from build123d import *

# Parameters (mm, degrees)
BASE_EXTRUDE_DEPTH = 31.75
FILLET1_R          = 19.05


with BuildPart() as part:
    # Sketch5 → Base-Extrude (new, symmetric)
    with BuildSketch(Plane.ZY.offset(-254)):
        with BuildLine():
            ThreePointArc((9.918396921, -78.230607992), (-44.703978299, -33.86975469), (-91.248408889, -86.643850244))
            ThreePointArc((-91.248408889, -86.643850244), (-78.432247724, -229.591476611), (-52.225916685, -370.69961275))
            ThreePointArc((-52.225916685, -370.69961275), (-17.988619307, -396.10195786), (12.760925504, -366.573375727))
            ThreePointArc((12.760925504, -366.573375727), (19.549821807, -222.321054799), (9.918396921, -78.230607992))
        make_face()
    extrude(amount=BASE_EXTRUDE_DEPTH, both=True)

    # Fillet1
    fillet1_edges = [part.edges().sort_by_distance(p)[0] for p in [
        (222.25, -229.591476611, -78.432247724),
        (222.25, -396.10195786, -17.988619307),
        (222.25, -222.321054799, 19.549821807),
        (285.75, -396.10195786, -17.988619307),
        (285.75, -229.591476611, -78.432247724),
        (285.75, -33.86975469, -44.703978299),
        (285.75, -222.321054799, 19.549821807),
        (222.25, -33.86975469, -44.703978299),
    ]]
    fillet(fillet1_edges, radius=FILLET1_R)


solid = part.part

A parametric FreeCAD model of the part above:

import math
import FreeCAD as App
import Part
import Sketcher
from FreeCAD import Vector
Q = App.Units.Quantity


def edges_at(feature, points):
    """Names of the edges that pass closest to the given points."""
    edges = feature.Shape.Edges
    near = lambda p: min(range(len(edges)), key=lambda i: edges[i].distToShape(Part.Vertex(*p))[0])
    return sorted({f"Edge{near(p) + 1}" for p in points})

doc = App.newDocument("Part")
body = doc.addObject("PartDesign::Body", "Body")

# Sketch on YZ plane
sketch1 = body.newObject("Sketcher::SketchObject", "Sketch")
sketch1.AttachmentSupport = (doc.getObject("YZ_Plane"), [""])
sketch1.MapMode = "FlatFace"
sketch1.AttachmentOffset = App.Placement(Vector(0, 0, 10 * 25.4), App.Rotation())
sketch1.addGeometry([
    Part.ArcOfCircle(Part.Circle(Vector(-84.494996, -40.493878, 0), Vector(0, 0, 1), 50.8), math.radians(-92.424351), math.radians(82.916556)),
    Part.ArcOfCircle(Part.Circle(Vector(-22.178222, 1431.387523, 0), Vector(0, 0, 1), 1524), math.radians(-103.219875), math.radians(-92.424351)),
    Part.ArcOfCircle(Part.Circle(Vector(-363.148316, -20.080959, 0), Vector(0, 0, 1), 33.02), math.radians(95.953818), math.radians(256.780125)),
    Part.ArcOfCircle(Part.Circle(Vector(-234.840307, -1250.388471, 0), Vector(0, 0, 1), 1270), math.radians(82.916556), math.radians(95.953818)),
], False)
sketch1.addConstraint([
    Sketcher.Constraint("Tangent", 0, 1, 1, 2),
    Sketcher.Constraint("Tangent", 1, 1, 2, 2),
    Sketcher.Constraint("Tangent", 2, 1, 3, 2),
    Sketcher.Constraint("Tangent", 3, 1, 0, 2),
    Sketcher.Constraint("Radius", 0, Q("2 in")),
    Sketcher.Constraint("Radius", 1, Q("60 in")),
    Sketcher.Constraint("Radius", 3, Q("50 in")),
    Sketcher.Constraint("Radius", 2, Q("1.3 in")),
    Sketcher.Constraint("DistanceY", 0, 3, 1, 3, Q("1471.881401 mm")),
    Sketcher.Constraint("DistanceX", 1, 3, -1, 1, Q("22.178222 mm")),
    Sketcher.Constraint("DistanceY", 2, 3, -1, 1, Q("20.080959 mm")),
    Sketcher.Constraint("DistanceY", 3, 3, -1, 1, Q("1250.388471 mm")),
])
pad1 = body.newObject("PartDesign::Pad", "Pad")
pad1.Profile = sketch1
pad1.Length = Q("2.5 in")
pad1.Midplane = True
doc.recompute()

fillet = body.newObject("PartDesign::Fillet", "Fillet")
fillet.Base = (pad1, edges_at(pad1, [
    (222.25, -229.591, -78.432),
    (222.25, -396.102, -17.989),
    (222.25, -222.321, 19.55),
    (285.75, -396.102, -17.989),
    (285.75, -229.591, -78.432),
    (285.75, -33.87, -44.704),
    (285.75, -222.321, 19.55),
    (222.25, -33.87, -44.704),
]))
fillet.Radius = Q("0.75 in")

doc.recompute()
